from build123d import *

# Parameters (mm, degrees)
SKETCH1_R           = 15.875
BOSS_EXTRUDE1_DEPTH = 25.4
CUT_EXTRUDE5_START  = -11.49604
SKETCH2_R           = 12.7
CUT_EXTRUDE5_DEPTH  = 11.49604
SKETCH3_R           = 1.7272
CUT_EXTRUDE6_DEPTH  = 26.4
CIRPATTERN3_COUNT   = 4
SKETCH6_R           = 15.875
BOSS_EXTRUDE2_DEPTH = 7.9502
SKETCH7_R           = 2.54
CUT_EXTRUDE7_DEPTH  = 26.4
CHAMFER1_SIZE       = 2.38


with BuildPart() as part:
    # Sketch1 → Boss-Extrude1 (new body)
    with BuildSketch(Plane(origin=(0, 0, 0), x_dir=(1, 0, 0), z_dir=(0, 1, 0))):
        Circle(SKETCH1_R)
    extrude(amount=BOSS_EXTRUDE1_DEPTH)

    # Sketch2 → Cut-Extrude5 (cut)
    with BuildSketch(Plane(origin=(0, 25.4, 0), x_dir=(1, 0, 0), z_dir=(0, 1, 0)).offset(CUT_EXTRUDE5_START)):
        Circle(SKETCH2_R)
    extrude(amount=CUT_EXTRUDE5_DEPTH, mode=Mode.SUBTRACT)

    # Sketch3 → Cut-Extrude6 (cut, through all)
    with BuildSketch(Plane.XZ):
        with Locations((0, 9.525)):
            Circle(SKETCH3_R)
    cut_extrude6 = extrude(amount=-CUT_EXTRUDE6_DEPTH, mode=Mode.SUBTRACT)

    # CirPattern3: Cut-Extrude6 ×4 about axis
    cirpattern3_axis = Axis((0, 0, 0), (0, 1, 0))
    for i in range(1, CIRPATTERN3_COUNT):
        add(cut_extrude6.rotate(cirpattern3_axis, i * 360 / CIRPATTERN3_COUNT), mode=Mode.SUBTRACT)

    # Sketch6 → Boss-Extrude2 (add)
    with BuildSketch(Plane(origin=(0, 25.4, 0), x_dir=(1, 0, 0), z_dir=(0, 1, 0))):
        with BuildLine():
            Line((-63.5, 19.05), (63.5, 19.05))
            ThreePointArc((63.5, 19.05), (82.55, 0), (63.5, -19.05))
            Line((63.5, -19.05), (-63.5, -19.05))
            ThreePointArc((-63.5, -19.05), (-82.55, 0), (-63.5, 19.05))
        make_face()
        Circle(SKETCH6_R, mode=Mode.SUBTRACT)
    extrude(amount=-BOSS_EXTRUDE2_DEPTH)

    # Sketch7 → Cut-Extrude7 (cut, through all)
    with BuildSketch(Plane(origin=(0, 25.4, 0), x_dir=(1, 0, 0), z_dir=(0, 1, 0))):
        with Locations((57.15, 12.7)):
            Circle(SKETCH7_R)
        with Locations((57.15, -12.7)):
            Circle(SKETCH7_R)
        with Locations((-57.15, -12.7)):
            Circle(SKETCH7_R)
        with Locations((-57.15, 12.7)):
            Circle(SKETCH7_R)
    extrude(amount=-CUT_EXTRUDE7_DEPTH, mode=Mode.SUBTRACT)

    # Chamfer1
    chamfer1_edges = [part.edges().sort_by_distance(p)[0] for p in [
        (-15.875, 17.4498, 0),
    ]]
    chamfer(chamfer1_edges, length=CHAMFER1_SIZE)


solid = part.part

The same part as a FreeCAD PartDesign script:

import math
import FreeCAD as App
import Part
import Sketcher
Q = App.Units.Quantity


def edges_at(feature, points):
    """Names of the edges that pass closest to the given points."""
    edges = feature.Shape.Edges
    near = lambda p: min(range(len(edges)), key=lambda i: edges[i].distToShape(Part.Vertex(*p))[0])
    return sorted({f"Edge{near(p) + 1}" for p in points})

doc = App.newDocument("Part")
params = doc.addObject("Spreadsheet::Sheet", "Params")
for row, (alias, value) in enumerate([
    ("sketch1_diameter", "1.25 in"),
    ("pad1_length", "1 in"),
    ("sketch2_diameter", "1 in"),
    ("pocket1_length", "0.4526 in"),
    ("sketch3_diameter", "0.136 in"),
    ("sketch4_diameter", "1.25 in"),
    ("sketch4_width", "5 in"),
    ("sketch4_radius", "0.75 in"),
    ("pad2_length", "0.313 in"),
    ("sketch5_diameter", "0.2 in"),
    ("chamfer_size", "2.38 mm"),
], start=1):
    params.set(f"A{row}", alias)
    params.set(f"B{row}", "=" + value)
    params.setAlias(f"B{row}", alias)

body = doc.addObject("PartDesign::Body", "Body")

sketch1 = body.newObject("Sketcher::SketchObject", "Sketch")
sketch1.AttachmentSupport = (doc.getObject("XZ_Plane"), [""])
sketch1.MapMode = "FlatFace"
sketch1.addGeometry(Part.Circle(App.Vector(0, 0, 0), App.Vector(0, 0, 1), 16), False)
sketch1.addConstraint(Sketcher.Constraint("Coincident", 0, 3, -1, 1))
sketch1.addConstraint(Sketcher.Constraint("Diameter", 0, Q("1.25 in")))
sketch1.setExpression("Constraints[1]", "Params.sketch1_diameter")
pad1 = body.newObject("PartDesign::Pad", "Pad")
pad1.Profile = sketch1
pad1.setExpression("Length", "Params.pad1_length")
pad1.Reversed = True

sketch2 = body.newObject("Sketcher::SketchObject", "Sketch001")
sketch2.AttachmentSupport = (doc.getObject("XZ_Plane"), [""])
sketch2.MapMode = "FlatFace"
sketch2.AttachmentOffset = App.Placement(App.Vector(0, 0, -0.5474 * 25.4), App.Rotation())
sketch2.addGeometry(Part.Circle(App.Vector(0, 0, 0), App.Vector(0, 0, 1), 13), False)
sketch2.addConstraint(Sketcher.Constraint("Coincident", 0, 3, -1, 1))
sketch2.addConstraint(Sketcher.Constraint("Diameter", 0, Q("1 in")))
sketch2.setExpression("Constraints[1]", "Params.sketch2_diameter")
pocket1 = body.newObject("PartDesign::Pocket", "Pocket")
pocket1.Profile = sketch2
pocket1.setExpression("Length", "Params.pocket1_length")

sketch3 = body.newObject("Sketcher::SketchObject", "Sketch002")
sketch3.AttachmentSupport = (doc.getObject("XZ_Plane"), [""])
sketch3.MapMode = "FlatFace"
sketch3.addGeometry(Part.Circle(App.Vector(0, 9.5, 0), App.Vector(0, 0, 1), 1.7), False)
sketch3.addConstraint(Sketcher.Constraint("PointOnObject", 0, 3, -2))
sketch3.addConstraint(Sketcher.Constraint("Diameter", 0, Q("0.136 in")))
sketch3.addConstraint(Sketcher.Constraint("DistanceY", -1, 1, 0, 3, Q("0.375 in")))
sketch3.setExpression("Constraints[1]", "Params.sketch3_diameter")
pocket2 = body.newObject("PartDesign::Pocket", "Pocket001")
pocket2.Profile = sketch3
pocket2.Type = "ThroughAll"
doc.recompute()

polarpattern = body.newObject("PartDesign::PolarPattern", "PolarPattern")
polarpattern.Originals = [pocket2]
polarpattern.Axis = (doc.getObject("Y_Axis"), [""])
polarpattern.Angle = 360
polarpattern.Occurrences = 4
body.Tip = polarpattern

sketch4 = body.newObject("Sketcher::SketchObject", "Sketch003")
sketch4.AttachmentSupport = (doc.getObject("XZ_Plane"), [""])
sketch4.MapMode = "FlatFace"
sketch4.AttachmentOffset = App.Placement(App.Vector(0, 0, -1 * 25.4), App.Rotation())
sketch4.addGeometry(Part.LineSegment(App.Vector(64, -19, 0), App.Vector(-64, -19, 0)), False)
sketch4.addGeometry(Part.ArcOfCircle(Part.Circle(App.Vector(-64, 0, 0), App.Vector(0, 0, 1), 19), math.radians(90), math.radians(270)), False)
sketch4.addGeometry(Part.LineSegment(App.Vector(-64, 19, 0), App.Vector(64, 19, 0)), False)
sketch4.addGeometry(Part.ArcOfCircle(Part.Circle(App.Vector(64, 0, 0), App.Vector(0, 0, 1), 19), math.radians(-90), math.radians(90)), False)
sketch4.addGeometry(Part.Circle(App.Vector(0, 0, 0), App.Vector(0, 0, 1), 16), False)
sketch4.addConstraint(Sketcher.Constraint("Tangent", 0, 2, 1, 2))
sketch4.addConstraint(Sketcher.Constraint("Tangent", 1, 1, 2, 1))
sketch4.addConstraint(Sketcher.Constraint("Tangent", 2, 2, 3, 2))
sketch4.addConstraint(Sketcher.Constraint("Tangent", 3, 1, 0, 1))
sketch4.addConstraint(Sketcher.Constraint("Horizontal", 0))
sketch4.addConstraint(Sketcher.Constraint("Horizontal", 2))
sketch4.addConstraint(Sketcher.Constraint("Coincident", 4, 3, -1, 1))
sketch4.addConstraint(Sketcher.Constraint("Symmetric", 1, 3, 3, 3, -1, 1))
sketch4.addConstraint(Sketcher.Constraint("Diameter", 4, Q("1.25 in")))
sketch4.addConstraint(Sketcher.Constraint("DistanceX", 0, 2, 0, 1, Q("5 in")))
sketch4.addConstraint(Sketcher.Constraint("Radius", 1, Q("0.75 in")))
sketch4.setExpression("Constraints[8]", "Params.sketch4_diameter")
sketch4.setExpression("Constraints[9]", "Params.sketch4_width")
sketch4.setExpression("Constraints[10]", "Params.sketch4_radius")
pad2 = body.newObject("PartDesign::Pad", "Pad001")
pad2.Profile = sketch4
pad2.setExpression("Length", "Params.pad2_length")

sketch5 = body.newObject("Sketcher::SketchObject", "Sketch004")
sketch5.AttachmentSupport = (doc.getObject("XZ_Plane"), [""])
sketch5.MapMode = "FlatFace"
sketch5.AttachmentOffset = App.Placement(App.Vector(0, 0, -1 * 25.4), App.Rotation())
sketch5.addGeometry(Part.Circle(App.Vector(57.1, -12.7, 0), App.Vector(0, 0, 1), 2.5), False)
sketch5.addGeometry(Part.Circle(App.Vector(57.1, 12.7, 0), App.Vector(0, 0, 1), 2.5), False)
sketch5.addGeometry(Part.Circle(App.Vector(-57.1, 12.7, 0), App.Vector(0, 0, 1), 2.5), False)
sketch5.addGeometry(Part.Circle(App.Vector(-57.1, -12.7, 0), App.Vector(0, 0, 1), 2.5), False)
sketch5.addConstraint(Sketcher.Constraint("Equal", 0, 1))
sketch5.addConstraint(Sketcher.Constraint("Equal", 1, 2))
sketch5.addConstraint(Sketcher.Constraint("Equal", 2, 3))
sketch5.addConstraint(Sketcher.Constraint("Symmetric", 0, 3, 2, 3, -1, 1))
sketch5.addConstraint(Sketcher.Constraint("Symmetric", 1, 3, 3, 3, -1, 1))
sketch5.addConstraint(Sketcher.Constraint("Symmetric", 1, 3, 2, 3, -2))
sketch5.addConstraint(Sketcher.Constraint("Diameter", 0, Q("0.2 in")))
sketch5.addConstraint(Sketcher.Constraint("DistanceY", 0, 3, 1, 3, Q("1 in")))
sketch5.addConstraint(Sketcher.Constraint("DistanceX", 2, 3, 1, 3, Q("4.5 in")))
sketch5.setExpression("Constraints[6]", "Params.sketch5_diameter")
pocket3 = body.newObject("PartDesign::Pocket", "Pocket002")
pocket3.Profile = sketch5
pocket3.Type = "ThroughAll"
pocket3.Reversed = True
doc.recompute()

chamfer = body.newObject("PartDesign::Chamfer", "Chamfer")
chamfer.Base = (pocket3, edges_at(pocket3, [(-15.875, 17.45, 0)]))
chamfer.setExpression("Size", "Params.chamfer_size")

doc.recompute()
